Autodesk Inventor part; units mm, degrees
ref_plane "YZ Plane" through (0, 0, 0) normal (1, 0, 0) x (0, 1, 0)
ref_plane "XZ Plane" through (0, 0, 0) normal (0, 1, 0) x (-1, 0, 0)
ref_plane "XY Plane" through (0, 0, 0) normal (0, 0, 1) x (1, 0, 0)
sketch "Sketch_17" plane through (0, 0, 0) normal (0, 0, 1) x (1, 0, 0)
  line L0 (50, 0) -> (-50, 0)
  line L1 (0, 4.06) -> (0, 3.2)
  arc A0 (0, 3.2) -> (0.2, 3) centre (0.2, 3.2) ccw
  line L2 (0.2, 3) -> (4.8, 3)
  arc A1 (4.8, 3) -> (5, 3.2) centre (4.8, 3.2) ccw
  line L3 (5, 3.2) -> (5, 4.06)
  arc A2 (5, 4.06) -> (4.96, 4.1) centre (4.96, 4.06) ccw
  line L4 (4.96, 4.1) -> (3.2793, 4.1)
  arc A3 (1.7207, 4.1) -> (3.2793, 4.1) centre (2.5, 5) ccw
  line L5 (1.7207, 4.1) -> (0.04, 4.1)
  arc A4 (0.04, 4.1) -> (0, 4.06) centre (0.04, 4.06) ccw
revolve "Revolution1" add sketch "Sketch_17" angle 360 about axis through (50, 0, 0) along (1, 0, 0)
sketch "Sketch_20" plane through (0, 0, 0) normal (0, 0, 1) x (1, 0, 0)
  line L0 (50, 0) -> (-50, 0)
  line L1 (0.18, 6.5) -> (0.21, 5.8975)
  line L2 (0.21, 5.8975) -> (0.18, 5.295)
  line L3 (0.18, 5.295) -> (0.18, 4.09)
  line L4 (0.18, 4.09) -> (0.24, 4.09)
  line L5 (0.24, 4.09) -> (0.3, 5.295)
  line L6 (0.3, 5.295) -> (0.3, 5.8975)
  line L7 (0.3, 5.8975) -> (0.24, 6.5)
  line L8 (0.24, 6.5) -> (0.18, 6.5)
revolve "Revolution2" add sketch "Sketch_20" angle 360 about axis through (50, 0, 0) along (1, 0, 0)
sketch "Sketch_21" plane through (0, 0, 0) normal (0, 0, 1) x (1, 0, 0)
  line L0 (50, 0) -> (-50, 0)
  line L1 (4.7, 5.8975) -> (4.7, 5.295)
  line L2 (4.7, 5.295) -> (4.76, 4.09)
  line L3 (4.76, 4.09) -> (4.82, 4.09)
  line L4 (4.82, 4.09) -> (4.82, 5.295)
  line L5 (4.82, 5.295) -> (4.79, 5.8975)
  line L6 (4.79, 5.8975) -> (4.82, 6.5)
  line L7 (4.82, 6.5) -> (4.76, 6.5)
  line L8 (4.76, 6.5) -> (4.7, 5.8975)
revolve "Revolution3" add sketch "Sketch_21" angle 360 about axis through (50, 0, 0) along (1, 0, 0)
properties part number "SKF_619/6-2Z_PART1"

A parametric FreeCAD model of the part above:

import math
import FreeCAD as App
import Part
import Sketcher
Q = App.Units.Quantity

doc = App.newDocument("Part")
body = doc.addObject("PartDesign::Body", "Body")

# Sketch on XY plane
sketch1 = body.newObject("Sketcher::SketchObject", "Sketch")
sketch1.AttachmentSupport = (doc.getObject("XY_Plane"), [""])
sketch1.MapMode = "FlatFace"
sketch1.addGeometry([
    Part.ArcOfCircle(Part.Circle(App.Vector(0.04, 4.06, 0), App.Vector(0, 0, 1), 0.04), math.radians(90), math.radians(180)),  # 0
    Part.LineSegment(App.Vector(0, 4.06, 0), App.Vector(0, 3.2, 0)),  # 1
    Part.ArcOfCircle(Part.Circle(App.Vector(0.2, 3.2, 0), App.Vector(0, 0, 1), 0.2), math.radians(180), math.radians(270)),  # 2
    Part.LineSegment(App.Vector(0.2, 3, 0), App.Vector(4.8, 3, 0)),  # 3
    Part.ArcOfCircle(Part.Circle(App.Vector(4.8, 3.2, 0), App.Vector(0, 0, 1), 0.2), math.radians(-90), math.radians(0)),  # 4
    Part.LineSegment(App.Vector(5, 3.2, 0), App.Vector(5, 4.06, 0)),  # 5
    Part.ArcOfCircle(Part.Circle(App.Vector(4.96, 4.06, 0), App.Vector(0, 0, 1), 0.04), math.radians(0), math.radians(90)),  # 6
    Part.LineSegment(App.Vector(4.96, 4.1, 0), App.Vector(3.279, 4.1, 0)),  # 7
    Part.ArcOfCircle(Part.Circle(App.Vector(2.5, 5, 0), App.Vector(0, 0, 1), 1.191), math.radians(-131), math.radians(-49)),  # 8
    Part.LineSegment(App.Vector(1.721, 4.1, 0), App.Vector(0.04, 4.1, 0)),  # 9
], False)
sketch1.addConstraint([
    Sketcher.Constraint("Tangent", 0, 2, 1, 1),
    Sketcher.Constraint("Tangent", 1, 2, 2, 1),
    Sketcher.Constraint("Tangent", 2, 2, 3, 1),
    Sketcher.Constraint("Tangent", 3, 2, 4, 1),
    Sketcher.Constraint("Tangent", 4, 2, 5, 1),
    Sketcher.Constraint("Tangent", 5, 2, 6, 1),
    Sketcher.Constraint("Tangent", 6, 2, 7, 1),
    Sketcher.Constraint("Coincident", 7, 2, 8, 2),
    Sketcher.Constraint("Coincident", 8, 1, 9, 1),
    Sketcher.Constraint("Tangent", 9, 2, 0, 1),
    Sketcher.Constraint("Vertical", 1),
    Sketcher.Constraint("Horizontal", 3),
    Sketcher.Constraint("Vertical", 5),
    Sketcher.Constraint("Horizontal", 7),
    Sketcher.Constraint("Horizontal", 9),
    Sketcher.Constraint("Equal", 2, 4),
    Sketcher.Constraint("Equal", 0, 6),
    Sketcher.Constraint("PointOnObject", 0, 2, -2),
    Sketcher.Constraint("Horizontal", 0, 3, 6, 3),
    Sketcher.Constraint("Equal", 7, 9),
    Sketcher.Constraint("Radius", 2, 0.2),
    Sketcher.Constraint("Radius", 0, 0.04),
    Sketcher.Constraint("DistanceX", 3, 1, 3, 2, 4.6),
    Sketcher.Constraint("DistanceY", -1, 1, 8, 3, 5.0),
    Sketcher.Constraint("DistanceY", -1, 1, 2, 2, 3.0),
    Sketcher.Constraint("DistanceY", 1, 2, 1, 1, 0.86),
    Sketcher.Constraint("Radius", 8, 1.1905),
])
revolution = body.newObject("PartDesign::Revolution", "Revolution")
revolution.Profile = sketch1
revolution.ReferenceAxis = (sketch1, ["H_Axis"])
revolution.Angle = 360

# Sketch on XY plane
sketch2 = body.newObject("Sketcher::SketchObject", "Sketch001")
sketch2.AttachmentSupport = (doc.getObject("XY_Plane"), [""])
sketch2.MapMode = "FlatFace"
sketch2.addGeometry([
    Part.LineSegment(App.Vector(0.24, 6.5, 0), App.Vector(0.18, 6.5, 0)),  # 0
    Part.LineSegment(App.Vector(0.18, 6.5, 0), App.Vector(0.21, 5.9, 0)),  # 1
    Part.LineSegment(App.Vector(0.21, 5.9, 0), App.Vector(0.18, 5.29, 0)),  # 2
    Part.LineSegment(App.Vector(0.18, 5.29, 0), App.Vector(0.18, 4.09, 0)),  # 3
    Part.LineSegment(App.Vector(0.18, 4.09, 0), App.Vector(0.24, 4.09, 0)),  # 4
    Part.LineSegment(App.Vector(0.24, 4.09, 0), App.Vector(0.3, 5.29, 0)),  # 5
    Part.LineSegment(App.Vector(0.3, 5.29, 0), App.Vector(0.3, 5.9, 0)),  # 6
    Part.LineSegment(App.Vector(0.3, 5.9, 0), App.Vector(0.24, 6.5, 0)),  # 7
], False)
sketch2.addConstraint([
    Sketcher.Constraint("Coincident", 0, 2, 1, 1),
    Sketcher.Constraint("Coincident", 1, 2, 2, 1),
    Sketcher.Constraint("Coincident", 2, 2, 3, 1),
    Sketcher.Constraint("Coincident", 3, 2, 4, 1),
    Sketcher.Constraint("Coincident", 4, 2, 5, 1),
    Sketcher.Constraint("Coincident", 5, 2, 6, 1),
    Sketcher.Constraint("Coincident", 6, 2, 7, 1),
    Sketcher.Constraint("Coincident", 7, 2, 0, 1),
    Sketcher.Constraint("Horizontal", 0),
    Sketcher.Constraint("Vertical", 3),
    Sketcher.Constraint("Horizontal", 4),
    Sketcher.Constraint("Vertical", 6),
    Sketcher.Constraint("Parallel", 2, 5),
    Sketcher.Constraint("Horizontal", 2, 2, 5, 2),
    Sketcher.Constraint("Horizontal", 1, 2, 6, 2),
    Sketcher.Constraint("Vertical", 0, 2, 2, 2),
    Sketcher.Constraint("Vertical", 4, 2, 7, 2),
    Sketcher.Constraint("Equal", 1, 2),
    Sketcher.Constraint("DistanceX", 0, 2, 0, 1, 0.06),
    Sketcher.Constraint("DistanceY", -1, 1, 0, 2, 6.5),
    Sketcher.Constraint("DistanceX", -1, 1, 5, 2, 0.3),
    Sketcher.Constraint("Angle", 1, Q("-87.1495 deg")),
    Sketcher.Constraint("DistanceY", 3, 2, 3, 1, 1.205),
    Sketcher.Constraint("DistanceX", -1, 1, 1, 2, 0.21),
])
revolution2 = body.newObject("PartDesign::Revolution", "Revolution001")
revolution2.Profile = sketch2
revolution2.ReferenceAxis = (sketch2, ["H_Axis"])
revolution2.Angle = 360

# Sketch on XY plane
sketch3 = body.newObject("Sketcher::SketchObject", "Sketch002")
sketch3.AttachmentSupport = (doc.getObject("XY_Plane"), [""])
sketch3.MapMode = "FlatFace"
sketch3.addGeometry([
    Part.LineSegment(App.Vector(4.76, 6.5, 0), App.Vector(4.7, 5.9, 0)),  # 0
    Part.LineSegment(App.Vector(4.7, 5.9, 0), App.Vector(4.7, 5.29, 0)),  # 1
    Part.LineSegment(App.Vector(4.7, 5.29, 0), App.Vector(4.76, 4.09, 0)),  # 2
    Part.LineSegment(App.Vector(4.76, 4.09, 0), App.Vector(4.82, 4.09, 0)),  # 3
    Part.LineSegment(App.Vector(4.82, 4.09, 0), App.Vector(4.82, 5.29, 0)),  # 4
    Part.LineSegment(App.Vector(4.82, 5.29, 0), App.Vector(4.79, 5.9, 0)),  # 5
    Part.LineSegment(App.Vector(4.79, 5.9, 0), App.Vector(4.82, 6.5, 0)),  # 6
    Part.LineSegment(App.Vector(4.82, 6.5, 0), App.Vector(4.76, 6.5, 0)),  # 7
], False)
sketch3.addConstraint([
    Sketcher.Constraint("Coincident", 0, 2, 1, 1),
    Sketcher.Constraint("Coincident", 1, 2, 2, 1),
    Sketcher.Constraint("Coincident", 2, 2, 3, 1),
    Sketcher.Constraint("Coincident", 3, 2, 4, 1),
    Sketcher.Constraint("Coincident", 4, 2, 5, 1),
    Sketcher.Constraint("Coincident", 5, 2, 6, 1),
    Sketcher.Constraint("Coincident", 6, 2, 7, 1),
    Sketcher.Constraint("Coincident", 7, 2, 0, 1),
    Sketcher.Constraint("Vertical", 1),
    Sketcher.Constraint("Horizontal", 3),
    Sketcher.Constraint("Vertical", 4),
    Sketcher.Constraint("Horizontal", 7),
    Sketcher.Constraint("Parallel", 2, 5),
    Sketcher.Constraint("Horizontal", 1, 2, 4, 2),
    Sketcher.Constraint("Horizontal", 0, 2, 5, 2),
    Sketcher.Constraint("Vertical", 4, 2, 6, 2),
    Sketcher.Constraint("Vertical", 2, 2, 7, 2),
    Sketcher.Constraint("Equal", 5, 6),
    Sketcher.Constraint("DistanceX", 3, 1, 3, 2, 0.06),
    Sketcher.Constraint("DistanceX", -1, 1, 0, 2, 4.7),
    Sketcher.Constraint("DistanceY", -1, 1, 6, 2, 6.5),
    Sketcher.Constraint("Angle", 2, Q("-87.1495 deg")),
    Sketcher.Constraint("DistanceY", 4, 1, 4, 2, 1.205),
    Sketcher.Constraint("DistanceY", -1, 1, 2, 2, 4.09),
])
revolution3 = body.newObject("PartDesign::Revolution", "Revolution002")
revolution3.Profile = sketch3
revolution3.ReferenceAxis = (sketch3, ["H_Axis"])
revolution3.Angle = 360

doc.recompute()
